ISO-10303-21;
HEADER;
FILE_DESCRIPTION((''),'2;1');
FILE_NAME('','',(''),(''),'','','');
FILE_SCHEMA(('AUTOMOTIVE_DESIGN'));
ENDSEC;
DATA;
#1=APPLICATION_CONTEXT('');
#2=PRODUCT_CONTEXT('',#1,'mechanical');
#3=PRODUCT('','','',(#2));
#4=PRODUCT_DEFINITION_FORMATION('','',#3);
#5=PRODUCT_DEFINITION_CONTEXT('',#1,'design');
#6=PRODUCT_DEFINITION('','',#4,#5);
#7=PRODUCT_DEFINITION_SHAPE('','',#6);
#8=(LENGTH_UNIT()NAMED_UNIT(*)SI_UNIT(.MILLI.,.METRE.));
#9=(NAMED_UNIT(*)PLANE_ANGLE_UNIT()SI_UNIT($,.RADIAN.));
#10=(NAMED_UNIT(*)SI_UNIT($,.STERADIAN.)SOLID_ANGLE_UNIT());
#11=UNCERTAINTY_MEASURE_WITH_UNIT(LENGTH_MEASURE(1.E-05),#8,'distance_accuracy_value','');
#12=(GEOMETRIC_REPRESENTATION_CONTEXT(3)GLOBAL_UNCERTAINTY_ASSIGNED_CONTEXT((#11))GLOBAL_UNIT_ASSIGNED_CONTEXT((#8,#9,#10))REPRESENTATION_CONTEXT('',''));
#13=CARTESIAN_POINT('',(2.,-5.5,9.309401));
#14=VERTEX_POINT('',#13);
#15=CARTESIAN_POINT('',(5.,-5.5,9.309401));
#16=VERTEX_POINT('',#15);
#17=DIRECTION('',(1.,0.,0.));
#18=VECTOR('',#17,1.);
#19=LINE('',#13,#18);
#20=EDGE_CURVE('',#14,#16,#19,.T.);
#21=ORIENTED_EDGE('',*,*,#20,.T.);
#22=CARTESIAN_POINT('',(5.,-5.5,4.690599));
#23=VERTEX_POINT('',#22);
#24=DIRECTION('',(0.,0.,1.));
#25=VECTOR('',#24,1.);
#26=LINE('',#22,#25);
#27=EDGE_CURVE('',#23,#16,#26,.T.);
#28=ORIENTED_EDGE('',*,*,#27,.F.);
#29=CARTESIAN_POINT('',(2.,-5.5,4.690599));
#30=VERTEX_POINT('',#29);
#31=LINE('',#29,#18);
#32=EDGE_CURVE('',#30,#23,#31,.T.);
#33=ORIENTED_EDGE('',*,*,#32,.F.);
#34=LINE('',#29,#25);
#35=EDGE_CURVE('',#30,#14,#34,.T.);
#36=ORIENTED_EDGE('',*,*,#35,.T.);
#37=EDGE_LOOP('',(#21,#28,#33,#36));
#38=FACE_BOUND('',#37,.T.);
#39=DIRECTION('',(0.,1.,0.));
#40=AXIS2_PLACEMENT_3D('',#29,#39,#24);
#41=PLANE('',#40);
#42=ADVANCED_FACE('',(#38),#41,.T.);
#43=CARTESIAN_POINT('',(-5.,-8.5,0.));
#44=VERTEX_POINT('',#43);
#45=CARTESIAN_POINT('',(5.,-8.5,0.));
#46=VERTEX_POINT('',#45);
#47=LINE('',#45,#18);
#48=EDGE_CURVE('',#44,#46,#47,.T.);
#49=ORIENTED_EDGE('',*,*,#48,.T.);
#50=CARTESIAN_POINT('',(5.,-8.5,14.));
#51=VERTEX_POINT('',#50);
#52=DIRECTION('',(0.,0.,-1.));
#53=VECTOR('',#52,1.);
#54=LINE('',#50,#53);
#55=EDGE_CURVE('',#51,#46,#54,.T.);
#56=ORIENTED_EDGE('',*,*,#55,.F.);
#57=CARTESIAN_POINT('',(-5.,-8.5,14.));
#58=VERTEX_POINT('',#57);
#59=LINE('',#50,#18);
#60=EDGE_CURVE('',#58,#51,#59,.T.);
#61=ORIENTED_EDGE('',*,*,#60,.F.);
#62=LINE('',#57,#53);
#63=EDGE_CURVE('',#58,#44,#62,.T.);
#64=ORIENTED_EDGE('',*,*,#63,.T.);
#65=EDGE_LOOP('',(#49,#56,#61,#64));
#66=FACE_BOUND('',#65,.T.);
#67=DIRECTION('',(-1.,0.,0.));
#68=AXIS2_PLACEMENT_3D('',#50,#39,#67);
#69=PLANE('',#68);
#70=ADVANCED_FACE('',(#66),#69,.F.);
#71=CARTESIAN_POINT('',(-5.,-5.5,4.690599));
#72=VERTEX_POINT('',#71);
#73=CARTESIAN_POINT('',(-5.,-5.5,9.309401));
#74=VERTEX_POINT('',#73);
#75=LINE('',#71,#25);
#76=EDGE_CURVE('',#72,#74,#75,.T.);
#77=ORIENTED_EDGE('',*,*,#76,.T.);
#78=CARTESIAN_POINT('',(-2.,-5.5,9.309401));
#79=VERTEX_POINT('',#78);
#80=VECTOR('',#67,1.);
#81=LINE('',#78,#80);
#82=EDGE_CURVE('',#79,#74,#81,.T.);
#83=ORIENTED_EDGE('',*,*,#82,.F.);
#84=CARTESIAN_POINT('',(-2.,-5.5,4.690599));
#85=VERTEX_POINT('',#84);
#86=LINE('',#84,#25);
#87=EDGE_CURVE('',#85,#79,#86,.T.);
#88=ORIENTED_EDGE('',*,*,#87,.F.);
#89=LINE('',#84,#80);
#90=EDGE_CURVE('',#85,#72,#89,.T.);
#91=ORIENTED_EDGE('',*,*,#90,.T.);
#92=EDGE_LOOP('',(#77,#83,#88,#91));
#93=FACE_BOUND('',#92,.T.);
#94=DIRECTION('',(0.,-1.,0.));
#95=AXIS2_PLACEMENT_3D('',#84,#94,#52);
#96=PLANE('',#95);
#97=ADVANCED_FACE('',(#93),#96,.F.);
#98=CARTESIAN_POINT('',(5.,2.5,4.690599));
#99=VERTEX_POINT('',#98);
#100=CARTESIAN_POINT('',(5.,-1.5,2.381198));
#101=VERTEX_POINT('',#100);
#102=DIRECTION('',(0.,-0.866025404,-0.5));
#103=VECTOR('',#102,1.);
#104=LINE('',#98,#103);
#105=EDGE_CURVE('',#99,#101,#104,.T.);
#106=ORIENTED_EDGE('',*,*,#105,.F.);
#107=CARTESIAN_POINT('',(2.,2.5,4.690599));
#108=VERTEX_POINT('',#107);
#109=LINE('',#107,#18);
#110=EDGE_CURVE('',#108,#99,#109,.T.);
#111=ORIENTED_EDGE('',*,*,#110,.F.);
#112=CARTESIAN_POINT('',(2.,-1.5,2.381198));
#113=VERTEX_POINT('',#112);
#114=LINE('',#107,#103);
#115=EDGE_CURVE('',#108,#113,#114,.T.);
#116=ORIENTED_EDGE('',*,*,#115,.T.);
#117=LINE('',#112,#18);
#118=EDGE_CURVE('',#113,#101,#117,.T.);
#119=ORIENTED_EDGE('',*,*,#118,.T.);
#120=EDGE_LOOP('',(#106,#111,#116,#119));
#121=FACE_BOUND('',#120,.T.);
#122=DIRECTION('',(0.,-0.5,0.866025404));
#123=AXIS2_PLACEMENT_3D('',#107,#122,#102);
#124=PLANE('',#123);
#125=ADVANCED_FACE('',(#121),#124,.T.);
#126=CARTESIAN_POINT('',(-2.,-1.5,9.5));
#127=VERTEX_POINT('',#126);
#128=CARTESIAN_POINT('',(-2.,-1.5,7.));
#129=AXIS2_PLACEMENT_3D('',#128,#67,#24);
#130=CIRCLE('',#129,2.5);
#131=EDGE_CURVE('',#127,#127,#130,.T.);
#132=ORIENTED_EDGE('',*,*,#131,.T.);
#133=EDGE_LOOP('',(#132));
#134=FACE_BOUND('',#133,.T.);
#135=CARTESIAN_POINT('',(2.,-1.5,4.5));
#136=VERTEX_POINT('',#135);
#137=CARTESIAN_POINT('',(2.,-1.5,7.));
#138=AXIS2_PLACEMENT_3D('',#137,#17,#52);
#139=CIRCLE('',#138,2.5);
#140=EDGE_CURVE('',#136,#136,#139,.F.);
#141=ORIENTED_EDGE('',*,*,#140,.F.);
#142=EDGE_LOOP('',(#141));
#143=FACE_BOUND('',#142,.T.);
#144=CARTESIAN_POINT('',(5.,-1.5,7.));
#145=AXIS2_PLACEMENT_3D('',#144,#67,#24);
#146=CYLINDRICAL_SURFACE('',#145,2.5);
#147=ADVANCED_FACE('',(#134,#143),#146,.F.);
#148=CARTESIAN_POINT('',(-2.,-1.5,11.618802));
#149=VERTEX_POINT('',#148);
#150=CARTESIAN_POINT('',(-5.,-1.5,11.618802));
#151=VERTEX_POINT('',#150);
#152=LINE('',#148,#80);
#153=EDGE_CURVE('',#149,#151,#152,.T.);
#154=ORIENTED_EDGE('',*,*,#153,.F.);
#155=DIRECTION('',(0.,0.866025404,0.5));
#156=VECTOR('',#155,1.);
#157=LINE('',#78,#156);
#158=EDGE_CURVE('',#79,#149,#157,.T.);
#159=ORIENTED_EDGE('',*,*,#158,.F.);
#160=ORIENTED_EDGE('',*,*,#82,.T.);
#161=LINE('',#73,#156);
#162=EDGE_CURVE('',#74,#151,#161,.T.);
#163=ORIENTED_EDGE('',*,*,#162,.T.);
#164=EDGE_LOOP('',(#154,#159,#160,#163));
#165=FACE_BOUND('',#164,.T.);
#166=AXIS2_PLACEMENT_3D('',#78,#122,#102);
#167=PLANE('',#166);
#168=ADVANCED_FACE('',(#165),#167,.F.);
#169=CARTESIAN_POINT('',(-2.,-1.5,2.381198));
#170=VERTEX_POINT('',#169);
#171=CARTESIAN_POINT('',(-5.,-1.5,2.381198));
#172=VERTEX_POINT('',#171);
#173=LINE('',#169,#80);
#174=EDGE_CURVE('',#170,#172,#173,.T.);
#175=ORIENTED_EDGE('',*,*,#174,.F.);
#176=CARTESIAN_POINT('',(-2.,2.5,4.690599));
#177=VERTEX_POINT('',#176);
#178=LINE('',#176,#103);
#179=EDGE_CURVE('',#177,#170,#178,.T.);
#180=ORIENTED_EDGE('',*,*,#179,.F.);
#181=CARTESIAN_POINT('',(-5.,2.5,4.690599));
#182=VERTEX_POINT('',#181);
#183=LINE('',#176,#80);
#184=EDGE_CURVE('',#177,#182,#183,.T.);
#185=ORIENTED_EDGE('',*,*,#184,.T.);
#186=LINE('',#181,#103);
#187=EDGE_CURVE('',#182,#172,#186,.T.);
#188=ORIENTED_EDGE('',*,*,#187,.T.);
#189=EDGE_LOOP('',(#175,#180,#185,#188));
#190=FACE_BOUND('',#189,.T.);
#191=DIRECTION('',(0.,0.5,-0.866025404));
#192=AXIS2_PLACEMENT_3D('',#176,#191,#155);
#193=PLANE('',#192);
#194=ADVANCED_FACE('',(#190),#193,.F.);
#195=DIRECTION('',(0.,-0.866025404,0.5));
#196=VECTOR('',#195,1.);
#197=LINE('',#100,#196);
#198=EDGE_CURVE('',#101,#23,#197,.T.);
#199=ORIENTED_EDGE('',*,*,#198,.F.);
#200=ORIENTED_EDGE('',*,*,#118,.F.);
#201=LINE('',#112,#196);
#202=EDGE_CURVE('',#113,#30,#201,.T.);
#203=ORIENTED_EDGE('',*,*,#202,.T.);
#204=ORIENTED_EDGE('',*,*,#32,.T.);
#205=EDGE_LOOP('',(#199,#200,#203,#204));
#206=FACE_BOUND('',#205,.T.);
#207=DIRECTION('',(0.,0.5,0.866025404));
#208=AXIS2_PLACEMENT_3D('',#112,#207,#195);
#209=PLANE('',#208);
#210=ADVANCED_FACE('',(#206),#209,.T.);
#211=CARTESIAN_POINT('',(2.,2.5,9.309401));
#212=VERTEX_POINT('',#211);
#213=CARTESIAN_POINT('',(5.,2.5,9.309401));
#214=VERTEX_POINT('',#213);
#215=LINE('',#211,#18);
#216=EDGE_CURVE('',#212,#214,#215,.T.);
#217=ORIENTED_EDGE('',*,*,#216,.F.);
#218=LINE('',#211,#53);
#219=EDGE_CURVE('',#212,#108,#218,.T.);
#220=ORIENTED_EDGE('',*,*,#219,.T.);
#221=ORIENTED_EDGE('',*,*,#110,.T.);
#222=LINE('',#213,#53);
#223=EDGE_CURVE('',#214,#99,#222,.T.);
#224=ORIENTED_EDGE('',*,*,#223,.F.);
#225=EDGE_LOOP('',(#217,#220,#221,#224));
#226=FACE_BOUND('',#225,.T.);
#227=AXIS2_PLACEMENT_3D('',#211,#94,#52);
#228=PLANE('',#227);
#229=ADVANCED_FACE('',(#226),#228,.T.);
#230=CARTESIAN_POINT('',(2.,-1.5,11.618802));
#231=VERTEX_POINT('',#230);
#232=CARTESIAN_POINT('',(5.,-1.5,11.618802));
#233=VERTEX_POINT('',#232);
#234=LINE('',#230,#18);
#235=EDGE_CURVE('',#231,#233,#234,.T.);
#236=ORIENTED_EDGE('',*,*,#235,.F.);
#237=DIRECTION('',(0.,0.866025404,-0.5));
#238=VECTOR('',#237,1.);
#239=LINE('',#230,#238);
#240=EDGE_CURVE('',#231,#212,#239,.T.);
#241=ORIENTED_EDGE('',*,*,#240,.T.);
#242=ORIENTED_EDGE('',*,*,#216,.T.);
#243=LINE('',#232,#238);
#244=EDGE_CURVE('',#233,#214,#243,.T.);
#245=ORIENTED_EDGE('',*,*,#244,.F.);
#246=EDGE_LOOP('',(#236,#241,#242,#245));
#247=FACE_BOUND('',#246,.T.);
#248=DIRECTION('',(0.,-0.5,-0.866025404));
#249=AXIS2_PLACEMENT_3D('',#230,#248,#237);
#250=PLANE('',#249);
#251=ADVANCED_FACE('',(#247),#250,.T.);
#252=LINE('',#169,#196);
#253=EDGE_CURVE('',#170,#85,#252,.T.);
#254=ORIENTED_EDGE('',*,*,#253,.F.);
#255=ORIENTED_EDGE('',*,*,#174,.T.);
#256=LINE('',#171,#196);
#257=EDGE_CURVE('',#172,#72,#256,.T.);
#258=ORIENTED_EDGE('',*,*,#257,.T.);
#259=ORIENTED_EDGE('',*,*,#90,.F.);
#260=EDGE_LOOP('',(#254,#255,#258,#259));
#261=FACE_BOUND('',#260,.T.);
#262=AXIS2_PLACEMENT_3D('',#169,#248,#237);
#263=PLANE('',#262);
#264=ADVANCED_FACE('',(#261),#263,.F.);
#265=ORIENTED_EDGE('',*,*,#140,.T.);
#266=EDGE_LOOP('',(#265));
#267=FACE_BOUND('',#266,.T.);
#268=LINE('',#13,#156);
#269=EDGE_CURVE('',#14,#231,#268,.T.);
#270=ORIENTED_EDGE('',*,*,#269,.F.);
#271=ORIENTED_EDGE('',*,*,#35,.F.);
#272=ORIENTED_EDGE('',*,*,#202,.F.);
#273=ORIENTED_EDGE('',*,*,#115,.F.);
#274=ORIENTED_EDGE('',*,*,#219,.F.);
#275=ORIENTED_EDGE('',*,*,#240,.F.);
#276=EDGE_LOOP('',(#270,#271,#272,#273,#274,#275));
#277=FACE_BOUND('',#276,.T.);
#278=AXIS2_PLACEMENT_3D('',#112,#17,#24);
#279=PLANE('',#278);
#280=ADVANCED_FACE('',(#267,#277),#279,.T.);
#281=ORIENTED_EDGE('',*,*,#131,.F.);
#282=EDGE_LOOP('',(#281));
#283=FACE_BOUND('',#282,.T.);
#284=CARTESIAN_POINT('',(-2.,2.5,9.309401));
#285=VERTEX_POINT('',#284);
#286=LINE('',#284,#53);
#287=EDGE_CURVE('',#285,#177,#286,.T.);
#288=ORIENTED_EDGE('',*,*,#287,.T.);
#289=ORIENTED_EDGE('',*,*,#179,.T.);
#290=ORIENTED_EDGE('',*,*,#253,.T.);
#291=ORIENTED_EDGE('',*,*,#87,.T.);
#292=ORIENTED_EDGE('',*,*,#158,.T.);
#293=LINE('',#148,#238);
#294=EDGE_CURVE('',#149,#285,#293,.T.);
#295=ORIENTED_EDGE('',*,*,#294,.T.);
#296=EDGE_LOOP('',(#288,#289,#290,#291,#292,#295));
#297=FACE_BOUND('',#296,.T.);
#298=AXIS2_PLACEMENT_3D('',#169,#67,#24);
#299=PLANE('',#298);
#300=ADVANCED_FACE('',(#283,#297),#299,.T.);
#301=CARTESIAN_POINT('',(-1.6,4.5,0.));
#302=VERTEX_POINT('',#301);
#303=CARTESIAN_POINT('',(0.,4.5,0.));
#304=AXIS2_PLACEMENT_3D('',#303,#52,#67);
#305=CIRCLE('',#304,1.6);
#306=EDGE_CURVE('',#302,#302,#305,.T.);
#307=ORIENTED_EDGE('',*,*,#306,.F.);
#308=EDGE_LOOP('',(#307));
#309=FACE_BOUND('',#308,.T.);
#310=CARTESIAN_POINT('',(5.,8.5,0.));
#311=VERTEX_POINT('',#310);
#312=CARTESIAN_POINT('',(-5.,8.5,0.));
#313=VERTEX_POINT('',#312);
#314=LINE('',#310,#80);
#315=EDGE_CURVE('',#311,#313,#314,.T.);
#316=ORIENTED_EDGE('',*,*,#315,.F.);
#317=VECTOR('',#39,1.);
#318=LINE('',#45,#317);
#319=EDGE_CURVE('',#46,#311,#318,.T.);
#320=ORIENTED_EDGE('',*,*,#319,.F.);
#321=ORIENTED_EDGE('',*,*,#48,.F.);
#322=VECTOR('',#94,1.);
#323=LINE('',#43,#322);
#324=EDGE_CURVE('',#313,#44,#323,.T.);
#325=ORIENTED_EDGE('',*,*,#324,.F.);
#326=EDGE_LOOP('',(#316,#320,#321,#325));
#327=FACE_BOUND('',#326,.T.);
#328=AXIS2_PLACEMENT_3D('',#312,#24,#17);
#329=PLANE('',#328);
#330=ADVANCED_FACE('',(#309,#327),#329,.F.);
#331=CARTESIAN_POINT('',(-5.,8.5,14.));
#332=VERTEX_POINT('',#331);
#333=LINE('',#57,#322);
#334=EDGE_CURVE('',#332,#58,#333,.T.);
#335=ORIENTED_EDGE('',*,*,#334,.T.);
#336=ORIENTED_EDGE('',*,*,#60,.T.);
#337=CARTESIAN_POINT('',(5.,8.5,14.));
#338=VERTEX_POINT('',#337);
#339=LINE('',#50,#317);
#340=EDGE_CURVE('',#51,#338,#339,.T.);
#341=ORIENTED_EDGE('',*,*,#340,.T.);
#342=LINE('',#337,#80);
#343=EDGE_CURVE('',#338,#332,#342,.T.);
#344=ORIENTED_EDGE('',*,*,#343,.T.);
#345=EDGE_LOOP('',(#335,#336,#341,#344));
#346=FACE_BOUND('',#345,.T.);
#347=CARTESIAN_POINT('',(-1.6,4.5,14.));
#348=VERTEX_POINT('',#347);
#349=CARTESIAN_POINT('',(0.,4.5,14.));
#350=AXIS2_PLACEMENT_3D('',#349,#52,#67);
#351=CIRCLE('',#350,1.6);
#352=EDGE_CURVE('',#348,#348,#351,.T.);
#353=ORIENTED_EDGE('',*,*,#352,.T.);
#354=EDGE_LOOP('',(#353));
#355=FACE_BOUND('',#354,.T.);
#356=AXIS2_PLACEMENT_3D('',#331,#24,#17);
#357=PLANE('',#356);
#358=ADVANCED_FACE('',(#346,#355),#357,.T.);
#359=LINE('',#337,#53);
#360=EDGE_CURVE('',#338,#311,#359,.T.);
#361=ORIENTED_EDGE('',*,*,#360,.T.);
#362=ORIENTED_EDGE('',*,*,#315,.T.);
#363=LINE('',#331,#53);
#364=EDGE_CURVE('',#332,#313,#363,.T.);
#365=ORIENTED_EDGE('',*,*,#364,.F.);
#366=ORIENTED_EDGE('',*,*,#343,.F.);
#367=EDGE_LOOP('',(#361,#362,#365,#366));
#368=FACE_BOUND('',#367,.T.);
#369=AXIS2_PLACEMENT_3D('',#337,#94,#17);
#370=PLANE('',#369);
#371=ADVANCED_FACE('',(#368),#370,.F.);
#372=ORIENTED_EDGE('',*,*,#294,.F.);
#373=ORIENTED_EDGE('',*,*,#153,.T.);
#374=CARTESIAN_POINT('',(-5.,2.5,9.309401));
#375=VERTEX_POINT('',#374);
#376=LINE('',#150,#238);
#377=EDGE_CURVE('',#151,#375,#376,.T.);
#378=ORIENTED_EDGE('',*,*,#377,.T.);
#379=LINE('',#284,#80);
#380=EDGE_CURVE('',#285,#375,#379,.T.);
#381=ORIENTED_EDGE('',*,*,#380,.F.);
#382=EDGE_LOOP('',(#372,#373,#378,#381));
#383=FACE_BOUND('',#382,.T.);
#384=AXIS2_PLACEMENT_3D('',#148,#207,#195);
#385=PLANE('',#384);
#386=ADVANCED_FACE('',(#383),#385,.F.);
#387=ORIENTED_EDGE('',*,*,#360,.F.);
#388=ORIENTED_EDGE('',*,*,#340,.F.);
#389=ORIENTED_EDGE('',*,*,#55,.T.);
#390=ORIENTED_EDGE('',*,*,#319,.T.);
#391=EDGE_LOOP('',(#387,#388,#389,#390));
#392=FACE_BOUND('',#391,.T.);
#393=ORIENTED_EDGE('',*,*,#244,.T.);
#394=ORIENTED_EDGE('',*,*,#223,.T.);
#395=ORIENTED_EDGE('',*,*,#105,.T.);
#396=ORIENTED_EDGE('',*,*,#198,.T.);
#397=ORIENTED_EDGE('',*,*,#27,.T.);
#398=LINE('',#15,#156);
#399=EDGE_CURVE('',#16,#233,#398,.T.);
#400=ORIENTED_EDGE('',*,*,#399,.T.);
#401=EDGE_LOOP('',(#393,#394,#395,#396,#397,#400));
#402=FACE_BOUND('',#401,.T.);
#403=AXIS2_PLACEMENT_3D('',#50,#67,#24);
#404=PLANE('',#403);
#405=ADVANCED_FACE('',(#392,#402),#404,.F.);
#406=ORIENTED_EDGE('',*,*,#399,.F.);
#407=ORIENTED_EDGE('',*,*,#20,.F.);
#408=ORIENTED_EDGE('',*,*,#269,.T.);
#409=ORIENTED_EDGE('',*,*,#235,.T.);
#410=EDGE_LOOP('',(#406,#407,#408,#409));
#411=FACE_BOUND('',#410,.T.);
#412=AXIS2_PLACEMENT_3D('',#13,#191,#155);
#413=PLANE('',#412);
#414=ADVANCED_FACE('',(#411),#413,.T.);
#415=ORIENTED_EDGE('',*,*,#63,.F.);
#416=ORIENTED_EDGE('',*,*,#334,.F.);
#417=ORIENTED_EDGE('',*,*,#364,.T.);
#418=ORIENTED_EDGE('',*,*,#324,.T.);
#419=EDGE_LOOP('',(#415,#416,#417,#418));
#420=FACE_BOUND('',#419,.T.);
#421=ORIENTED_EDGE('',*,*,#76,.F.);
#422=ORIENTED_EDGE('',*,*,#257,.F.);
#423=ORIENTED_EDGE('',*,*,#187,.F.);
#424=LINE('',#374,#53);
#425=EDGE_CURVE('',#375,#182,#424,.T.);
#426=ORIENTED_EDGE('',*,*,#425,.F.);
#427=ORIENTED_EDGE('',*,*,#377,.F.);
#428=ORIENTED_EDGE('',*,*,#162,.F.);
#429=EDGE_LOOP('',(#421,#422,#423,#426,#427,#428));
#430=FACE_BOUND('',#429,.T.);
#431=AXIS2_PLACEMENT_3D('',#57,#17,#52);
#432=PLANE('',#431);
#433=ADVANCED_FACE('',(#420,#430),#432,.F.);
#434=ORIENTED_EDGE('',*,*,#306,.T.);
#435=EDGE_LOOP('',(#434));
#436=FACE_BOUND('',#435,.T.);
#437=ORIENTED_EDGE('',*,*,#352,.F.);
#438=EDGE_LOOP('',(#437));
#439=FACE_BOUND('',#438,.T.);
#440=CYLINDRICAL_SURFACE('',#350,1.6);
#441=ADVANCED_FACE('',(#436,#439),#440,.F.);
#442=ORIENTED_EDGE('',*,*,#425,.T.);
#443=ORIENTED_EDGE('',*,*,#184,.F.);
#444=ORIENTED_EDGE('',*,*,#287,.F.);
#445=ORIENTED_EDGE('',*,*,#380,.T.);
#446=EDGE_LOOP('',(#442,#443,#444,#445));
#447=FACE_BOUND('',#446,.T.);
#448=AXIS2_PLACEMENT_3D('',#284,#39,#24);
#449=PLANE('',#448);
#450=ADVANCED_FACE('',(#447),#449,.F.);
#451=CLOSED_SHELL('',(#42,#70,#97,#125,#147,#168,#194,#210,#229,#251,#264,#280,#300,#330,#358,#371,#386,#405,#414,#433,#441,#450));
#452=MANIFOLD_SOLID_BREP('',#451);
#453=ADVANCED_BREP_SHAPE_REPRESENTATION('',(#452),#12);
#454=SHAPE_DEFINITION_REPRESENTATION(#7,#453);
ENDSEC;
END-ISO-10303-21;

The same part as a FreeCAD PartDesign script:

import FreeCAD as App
import Part
import Sketcher
Q = App.Units.Quantity

doc = App.newDocument("Part")
body = doc.addObject("PartDesign::Body", "Body")

# Sketch on XY plane
sketch1 = body.newObject("Sketcher::SketchObject", "Sketch")
sketch1.AttachmentSupport = (doc.getObject("XY_Plane"), [""])
sketch1.MapMode = "FlatFace"
sketch1.addGeometry([
    Part.LineSegment(App.Vector(-5, 8.5, 0), App.Vector(-5, -8.5, 0)),
    Part.LineSegment(App.Vector(-5, -8.5, 0), App.Vector(5, -8.5, 0)),
    Part.LineSegment(App.Vector(5, -8.5, 0), App.Vector(5, 8.5, 0)),
    Part.LineSegment(App.Vector(5, 8.5, 0), App.Vector(-5, 8.5, 0)),
], False)
sketch1.addConstraint([
    Sketcher.Constraint("Coincident", 0, 2, 1, 1),
    Sketcher.Constraint("Coincident", 1, 2, 2, 1),
    Sketcher.Constraint("Coincident", 2, 2, 3, 1),
    Sketcher.Constraint("Coincident", 3, 2, 0, 1),
    Sketcher.Constraint("Vertical", 0),
    Sketcher.Constraint("Horizontal", 1),
    Sketcher.Constraint("Vertical", 2),
    Sketcher.Constraint("Horizontal", 3),
    Sketcher.Constraint("Symmetric", 0, 2, 2, 2, -1, 1),
    Sketcher.Constraint("DistanceX", 1, 1, 1, 2, Q("10 mm")),
    Sketcher.Constraint("DistanceY", 0, 2, 0, 1, Q("17 mm")),
])
pad1 = body.newObject("PartDesign::Pad", "Pad")
pad1.Profile = sketch1
pad1.Length = 14

# Sketch on XY plane
sketch2 = body.newObject("Sketcher::SketchObject", "Sketch001")
sketch2.AttachmentSupport = (doc.getObject("XY_Plane"), [""])
sketch2.MapMode = "FlatFace"
sketch2.addGeometry(Part.Circle(App.Vector(0, 4.5, 0), App.Vector(0, 0, 1), 1.6), False)
sketch2.addConstraint([
    Sketcher.Constraint("PointOnObject", 0, 3, -2),
    Sketcher.Constraint("Diameter", 0, Q("3.2 mm")),
    Sketcher.Constraint("DistanceY", -1, 1, 0, 3, Q("4.5 mm")),
])
pocket1 = body.newObject("PartDesign::Pocket", "Pocket")
pocket1.Profile = sketch2
pocket1.Type = "ThroughAll"
pocket1.Reversed = True

# Sketch on YZ plane
sketch3 = body.newObject("Sketcher::SketchObject", "Sketch002")
sketch3.AttachmentSupport = (doc.getObject("YZ_Plane"), [""])
sketch3.MapMode = "FlatFace"
sketch3.AttachmentOffset = App.Placement(App.Vector(0, 0, -5), App.Rotation())
sketch3.addGeometry([
    Part.LineSegment(App.Vector(-1.5, 2.381198, 0), App.Vector(-5.5, 4.690599, 0)),  # 0
    Part.LineSegment(App.Vector(-5.5, 4.690599, 0), App.Vector(-5.5, 9.309401, 0)),  # 1
    Part.LineSegment(App.Vector(-5.5, 9.309401, 0), App.Vector(-1.5, 11.618802, 0)),  # 2
    Part.LineSegment(App.Vector(-1.5, 11.618802, 0), App.Vector(2.5, 9.309401, 0)),  # 3
    Part.LineSegment(App.Vector(2.5, 9.309401, 0), App.Vector(2.5, 4.690599, 0)),  # 4
    Part.LineSegment(App.Vector(2.5, 4.690599, 0), App.Vector(-1.5, 2.381198, 0)),  # 5
], False)
sketch3.addConstraint([
    Sketcher.Constraint("Coincident", 0, 2, 1, 1),
    Sketcher.Constraint("Coincident", 1, 2, 2, 1),
    Sketcher.Constraint("Coincident", 2, 2, 3, 1),
    Sketcher.Constraint("Coincident", 3, 2, 4, 1),
    Sketcher.Constraint("Coincident", 4, 2, 5, 1),
    Sketcher.Constraint("Coincident", 5, 2, 0, 1),
    Sketcher.Constraint("Vertical", 1),
    Sketcher.Constraint("Vertical", 4),
    Sketcher.Constraint("Parallel", 0, 3),
    Sketcher.Constraint("Parallel", 2, 5),
    Sketcher.Constraint("Horizontal", 1, 2, 3, 2),
    Sketcher.Constraint("Horizontal", 0, 2, 4, 2),
    Sketcher.Constraint("Vertical", 2, 2, 5, 2),
    Sketcher.Constraint("Angle", 0, Q("150 deg")),
    Sketcher.Constraint("DistanceX", 1, 2, 2, 2, Q("4 mm")),
    Sketcher.Constraint("DistanceX", 0, 2, -1, 1, Q("5.5 mm")),
    Sketcher.Constraint("DistanceY", -1, 1, 0, 2, Q("4.690599 mm")),
    Sketcher.Constraint("DistanceY", -1, 1, 1, 2, Q("9.309401 mm")),
])
pocket2 = body.newObject("PartDesign::Pocket", "Pocket001")
pocket2.Profile = sketch3
pocket2.Length = 3
pocket2.Reversed = True

# Sketch on YZ plane
sketch4 = body.newObject("Sketcher::SketchObject", "Sketch003")
sketch4.AttachmentSupport = (doc.getObject("YZ_Plane"), [""])
sketch4.MapMode = "FlatFace"
sketch4.AttachmentOffset = App.Placement(App.Vector(0, 0, -2), App.Rotation())
sketch4.addGeometry(Part.Circle(App.Vector(-1.5, 7, 0), App.Vector(0, 0, 1), 2.5), False)
sketch4.addConstraint([
    Sketcher.Constraint("Diameter", 0, Q("5 mm")),
    Sketcher.Constraint("DistanceY", -1, 1, 0, 3, Q("7 mm")),
    Sketcher.Constraint("DistanceX", 0, 3, -1, 1, Q("1.5 mm")),
])
pocket3 = body.newObject("PartDesign::Pocket", "Pocket002")
pocket3.Profile = sketch4
pocket3.Type = "ThroughAll"
pocket3.Reversed = True
doc.recompute()

mirrored = body.newObject("PartDesign::Mirrored", "Mirrored")
mirrored.Originals = [pocket2]
mirrored.MirrorPlane = (doc.getObject("YZ_Plane"), [""])
body.Tip = mirrored

doc.recompute()
